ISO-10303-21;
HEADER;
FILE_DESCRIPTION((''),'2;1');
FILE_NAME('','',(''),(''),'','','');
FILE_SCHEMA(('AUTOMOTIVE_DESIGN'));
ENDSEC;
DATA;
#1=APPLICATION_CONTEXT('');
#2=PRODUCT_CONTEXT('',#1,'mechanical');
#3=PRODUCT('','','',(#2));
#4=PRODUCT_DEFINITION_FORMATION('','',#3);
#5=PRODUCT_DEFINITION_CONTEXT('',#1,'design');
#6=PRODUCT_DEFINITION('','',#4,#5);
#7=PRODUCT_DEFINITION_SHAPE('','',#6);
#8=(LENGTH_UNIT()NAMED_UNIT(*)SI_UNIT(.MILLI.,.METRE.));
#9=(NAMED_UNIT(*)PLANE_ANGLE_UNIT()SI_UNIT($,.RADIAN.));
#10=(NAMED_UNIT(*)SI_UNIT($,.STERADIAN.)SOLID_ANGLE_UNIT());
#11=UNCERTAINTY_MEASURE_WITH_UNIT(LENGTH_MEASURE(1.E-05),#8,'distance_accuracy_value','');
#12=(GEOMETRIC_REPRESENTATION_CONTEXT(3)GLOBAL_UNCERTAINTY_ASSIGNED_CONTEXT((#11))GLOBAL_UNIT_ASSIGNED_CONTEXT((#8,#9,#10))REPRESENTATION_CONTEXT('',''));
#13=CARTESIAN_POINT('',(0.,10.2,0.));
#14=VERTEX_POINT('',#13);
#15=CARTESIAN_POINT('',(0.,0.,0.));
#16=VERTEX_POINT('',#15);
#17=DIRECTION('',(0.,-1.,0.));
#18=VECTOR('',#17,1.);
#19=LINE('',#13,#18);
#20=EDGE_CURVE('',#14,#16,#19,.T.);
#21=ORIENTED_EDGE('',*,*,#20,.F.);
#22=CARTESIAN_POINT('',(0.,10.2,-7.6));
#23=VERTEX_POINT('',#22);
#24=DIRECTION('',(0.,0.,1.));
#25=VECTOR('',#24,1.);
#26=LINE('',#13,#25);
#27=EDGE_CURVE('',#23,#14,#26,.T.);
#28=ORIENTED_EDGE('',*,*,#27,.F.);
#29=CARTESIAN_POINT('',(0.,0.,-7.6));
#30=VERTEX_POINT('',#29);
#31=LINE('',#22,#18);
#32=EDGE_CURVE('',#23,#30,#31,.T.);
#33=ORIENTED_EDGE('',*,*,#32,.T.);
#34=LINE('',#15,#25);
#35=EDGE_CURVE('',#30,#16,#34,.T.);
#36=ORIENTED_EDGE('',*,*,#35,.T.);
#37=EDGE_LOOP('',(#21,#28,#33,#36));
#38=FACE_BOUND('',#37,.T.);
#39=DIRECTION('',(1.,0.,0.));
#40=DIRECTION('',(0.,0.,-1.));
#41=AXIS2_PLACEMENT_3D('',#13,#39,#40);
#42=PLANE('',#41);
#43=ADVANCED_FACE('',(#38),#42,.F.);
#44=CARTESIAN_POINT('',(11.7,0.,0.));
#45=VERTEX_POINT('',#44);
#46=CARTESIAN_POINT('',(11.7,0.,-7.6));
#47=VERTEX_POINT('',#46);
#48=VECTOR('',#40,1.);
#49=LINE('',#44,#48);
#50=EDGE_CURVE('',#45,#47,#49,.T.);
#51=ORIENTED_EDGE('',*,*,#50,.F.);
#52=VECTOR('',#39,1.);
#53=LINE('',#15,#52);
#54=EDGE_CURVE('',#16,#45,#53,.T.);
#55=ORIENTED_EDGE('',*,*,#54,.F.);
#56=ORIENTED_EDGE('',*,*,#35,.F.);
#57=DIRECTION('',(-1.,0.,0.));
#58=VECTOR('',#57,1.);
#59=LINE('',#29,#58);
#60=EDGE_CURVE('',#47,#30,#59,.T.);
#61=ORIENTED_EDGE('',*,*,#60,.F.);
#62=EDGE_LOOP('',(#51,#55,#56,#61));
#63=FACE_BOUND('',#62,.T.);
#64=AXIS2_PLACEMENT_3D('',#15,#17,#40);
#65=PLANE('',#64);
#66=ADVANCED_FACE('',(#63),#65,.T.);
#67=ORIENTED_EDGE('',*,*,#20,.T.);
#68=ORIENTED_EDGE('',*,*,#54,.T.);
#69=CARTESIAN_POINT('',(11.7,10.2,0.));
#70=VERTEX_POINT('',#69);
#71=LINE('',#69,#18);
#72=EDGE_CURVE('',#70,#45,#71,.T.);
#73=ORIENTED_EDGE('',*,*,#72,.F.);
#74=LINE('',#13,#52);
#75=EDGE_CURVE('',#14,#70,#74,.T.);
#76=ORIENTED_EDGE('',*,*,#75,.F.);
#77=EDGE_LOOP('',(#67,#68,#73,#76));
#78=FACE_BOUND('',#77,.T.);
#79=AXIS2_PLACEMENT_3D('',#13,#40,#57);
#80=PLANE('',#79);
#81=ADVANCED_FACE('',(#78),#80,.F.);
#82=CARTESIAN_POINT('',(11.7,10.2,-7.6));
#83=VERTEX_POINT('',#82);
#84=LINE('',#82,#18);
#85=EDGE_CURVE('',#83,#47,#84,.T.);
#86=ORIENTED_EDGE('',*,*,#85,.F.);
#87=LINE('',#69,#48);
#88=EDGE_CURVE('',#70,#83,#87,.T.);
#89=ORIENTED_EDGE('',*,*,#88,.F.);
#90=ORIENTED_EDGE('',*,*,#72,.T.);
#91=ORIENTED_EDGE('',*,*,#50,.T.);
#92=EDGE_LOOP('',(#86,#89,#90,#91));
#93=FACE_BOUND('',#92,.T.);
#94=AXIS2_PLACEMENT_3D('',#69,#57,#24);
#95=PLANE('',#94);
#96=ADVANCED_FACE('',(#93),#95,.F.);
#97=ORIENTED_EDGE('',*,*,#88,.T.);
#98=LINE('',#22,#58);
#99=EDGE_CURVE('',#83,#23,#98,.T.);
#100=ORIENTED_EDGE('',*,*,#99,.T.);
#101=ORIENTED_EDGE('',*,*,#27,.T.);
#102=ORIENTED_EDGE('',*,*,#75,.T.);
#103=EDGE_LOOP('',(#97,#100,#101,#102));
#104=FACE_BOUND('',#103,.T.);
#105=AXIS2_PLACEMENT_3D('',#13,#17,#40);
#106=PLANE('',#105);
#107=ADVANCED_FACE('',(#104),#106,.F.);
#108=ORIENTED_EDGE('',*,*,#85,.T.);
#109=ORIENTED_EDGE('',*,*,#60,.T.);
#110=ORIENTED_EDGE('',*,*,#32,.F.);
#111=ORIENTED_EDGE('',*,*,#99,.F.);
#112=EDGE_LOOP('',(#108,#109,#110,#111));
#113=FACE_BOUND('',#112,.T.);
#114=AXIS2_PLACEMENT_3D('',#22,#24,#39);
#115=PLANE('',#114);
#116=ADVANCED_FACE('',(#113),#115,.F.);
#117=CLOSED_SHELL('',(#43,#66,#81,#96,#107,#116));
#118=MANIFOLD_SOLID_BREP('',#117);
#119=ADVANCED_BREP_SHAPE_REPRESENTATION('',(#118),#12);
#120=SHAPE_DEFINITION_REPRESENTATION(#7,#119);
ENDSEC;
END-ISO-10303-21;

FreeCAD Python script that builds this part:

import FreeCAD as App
import Part
import Sketcher
Q = App.Units.Quantity

doc = App.newDocument("Part")
params = doc.addObject("Spreadsheet::Sheet", "Params")
for row, (alias, value) in enumerate([
    ("sketch1_width", "11.7 mm"),
    ("sketch1_height", "7.6 mm"),
    ("pad1_length", "10.2 mm"),
], start=1):
    params.set(f"A{row}", alias)
    params.set(f"B{row}", "=" + value)
    params.setAlias(f"B{row}", alias)

body = doc.addObject("PartDesign::Body", "Body")

# Sketch on XZ plane
sketch1 = doc.addObject("Sketcher::SketchObject", "Sketch")
body.addObject(sketch1)
sketch1.AttachmentSupport = (doc.XZ_Plane, [""])
sketch1.MapMode = "FlatFace"
sketch1.addGeometry(Part.LineSegment(App.Vector(0, -8, 0), App.Vector(0, 0, 0)), False)
sketch1.addGeometry(Part.LineSegment(App.Vector(0, 0, 0), App.Vector(12, 0, 0)), False)
sketch1.addGeometry(Part.LineSegment(App.Vector(12, 0, 0), App.Vector(12, -8, 0)), False)
sketch1.addGeometry(Part.LineSegment(App.Vector(12, -8, 0), App.Vector(0, -8, 0)), False)
sketch1.addConstraint(Sketcher.Constraint("Coincident", 0, 2, 1, 1))
sketch1.addConstraint(Sketcher.Constraint("Coincident", 1, 2, 2, 1))
sketch1.addConstraint(Sketcher.Constraint("Coincident", 2, 2, 3, 1))
sketch1.addConstraint(Sketcher.Constraint("Coincident", 3, 2, 0, 1))
sketch1.addConstraint(Sketcher.Constraint("Vertical", 0))
sketch1.addConstraint(Sketcher.Constraint("Horizontal", 1))
sketch1.addConstraint(Sketcher.Constraint("Vertical", 2))
sketch1.addConstraint(Sketcher.Constraint("Horizontal", 3))
sketch1.addConstraint(Sketcher.Constraint("Coincident", 0, 2, -1, 1))
sketch1.addConstraint(Sketcher.Constraint("DistanceX", 1, 1, 1, 2, Q("11.7 mm")))
sketch1.addConstraint(Sketcher.Constraint("DistanceY", 0, 1, 0, 2, Q("7.6 mm")))
sketch1.setExpression("Constraints[9]", "Params.sketch1_width")
sketch1.setExpression("Constraints[10]", "Params.sketch1_height")
pad1 = doc.addObject("PartDesign::Pad", "Pad")
body.addObject(pad1)
pad1.Profile = sketch1
pad1.setExpression("Length", "Params.pad1_length")
pad1.Reversed = True

doc.recompute()
